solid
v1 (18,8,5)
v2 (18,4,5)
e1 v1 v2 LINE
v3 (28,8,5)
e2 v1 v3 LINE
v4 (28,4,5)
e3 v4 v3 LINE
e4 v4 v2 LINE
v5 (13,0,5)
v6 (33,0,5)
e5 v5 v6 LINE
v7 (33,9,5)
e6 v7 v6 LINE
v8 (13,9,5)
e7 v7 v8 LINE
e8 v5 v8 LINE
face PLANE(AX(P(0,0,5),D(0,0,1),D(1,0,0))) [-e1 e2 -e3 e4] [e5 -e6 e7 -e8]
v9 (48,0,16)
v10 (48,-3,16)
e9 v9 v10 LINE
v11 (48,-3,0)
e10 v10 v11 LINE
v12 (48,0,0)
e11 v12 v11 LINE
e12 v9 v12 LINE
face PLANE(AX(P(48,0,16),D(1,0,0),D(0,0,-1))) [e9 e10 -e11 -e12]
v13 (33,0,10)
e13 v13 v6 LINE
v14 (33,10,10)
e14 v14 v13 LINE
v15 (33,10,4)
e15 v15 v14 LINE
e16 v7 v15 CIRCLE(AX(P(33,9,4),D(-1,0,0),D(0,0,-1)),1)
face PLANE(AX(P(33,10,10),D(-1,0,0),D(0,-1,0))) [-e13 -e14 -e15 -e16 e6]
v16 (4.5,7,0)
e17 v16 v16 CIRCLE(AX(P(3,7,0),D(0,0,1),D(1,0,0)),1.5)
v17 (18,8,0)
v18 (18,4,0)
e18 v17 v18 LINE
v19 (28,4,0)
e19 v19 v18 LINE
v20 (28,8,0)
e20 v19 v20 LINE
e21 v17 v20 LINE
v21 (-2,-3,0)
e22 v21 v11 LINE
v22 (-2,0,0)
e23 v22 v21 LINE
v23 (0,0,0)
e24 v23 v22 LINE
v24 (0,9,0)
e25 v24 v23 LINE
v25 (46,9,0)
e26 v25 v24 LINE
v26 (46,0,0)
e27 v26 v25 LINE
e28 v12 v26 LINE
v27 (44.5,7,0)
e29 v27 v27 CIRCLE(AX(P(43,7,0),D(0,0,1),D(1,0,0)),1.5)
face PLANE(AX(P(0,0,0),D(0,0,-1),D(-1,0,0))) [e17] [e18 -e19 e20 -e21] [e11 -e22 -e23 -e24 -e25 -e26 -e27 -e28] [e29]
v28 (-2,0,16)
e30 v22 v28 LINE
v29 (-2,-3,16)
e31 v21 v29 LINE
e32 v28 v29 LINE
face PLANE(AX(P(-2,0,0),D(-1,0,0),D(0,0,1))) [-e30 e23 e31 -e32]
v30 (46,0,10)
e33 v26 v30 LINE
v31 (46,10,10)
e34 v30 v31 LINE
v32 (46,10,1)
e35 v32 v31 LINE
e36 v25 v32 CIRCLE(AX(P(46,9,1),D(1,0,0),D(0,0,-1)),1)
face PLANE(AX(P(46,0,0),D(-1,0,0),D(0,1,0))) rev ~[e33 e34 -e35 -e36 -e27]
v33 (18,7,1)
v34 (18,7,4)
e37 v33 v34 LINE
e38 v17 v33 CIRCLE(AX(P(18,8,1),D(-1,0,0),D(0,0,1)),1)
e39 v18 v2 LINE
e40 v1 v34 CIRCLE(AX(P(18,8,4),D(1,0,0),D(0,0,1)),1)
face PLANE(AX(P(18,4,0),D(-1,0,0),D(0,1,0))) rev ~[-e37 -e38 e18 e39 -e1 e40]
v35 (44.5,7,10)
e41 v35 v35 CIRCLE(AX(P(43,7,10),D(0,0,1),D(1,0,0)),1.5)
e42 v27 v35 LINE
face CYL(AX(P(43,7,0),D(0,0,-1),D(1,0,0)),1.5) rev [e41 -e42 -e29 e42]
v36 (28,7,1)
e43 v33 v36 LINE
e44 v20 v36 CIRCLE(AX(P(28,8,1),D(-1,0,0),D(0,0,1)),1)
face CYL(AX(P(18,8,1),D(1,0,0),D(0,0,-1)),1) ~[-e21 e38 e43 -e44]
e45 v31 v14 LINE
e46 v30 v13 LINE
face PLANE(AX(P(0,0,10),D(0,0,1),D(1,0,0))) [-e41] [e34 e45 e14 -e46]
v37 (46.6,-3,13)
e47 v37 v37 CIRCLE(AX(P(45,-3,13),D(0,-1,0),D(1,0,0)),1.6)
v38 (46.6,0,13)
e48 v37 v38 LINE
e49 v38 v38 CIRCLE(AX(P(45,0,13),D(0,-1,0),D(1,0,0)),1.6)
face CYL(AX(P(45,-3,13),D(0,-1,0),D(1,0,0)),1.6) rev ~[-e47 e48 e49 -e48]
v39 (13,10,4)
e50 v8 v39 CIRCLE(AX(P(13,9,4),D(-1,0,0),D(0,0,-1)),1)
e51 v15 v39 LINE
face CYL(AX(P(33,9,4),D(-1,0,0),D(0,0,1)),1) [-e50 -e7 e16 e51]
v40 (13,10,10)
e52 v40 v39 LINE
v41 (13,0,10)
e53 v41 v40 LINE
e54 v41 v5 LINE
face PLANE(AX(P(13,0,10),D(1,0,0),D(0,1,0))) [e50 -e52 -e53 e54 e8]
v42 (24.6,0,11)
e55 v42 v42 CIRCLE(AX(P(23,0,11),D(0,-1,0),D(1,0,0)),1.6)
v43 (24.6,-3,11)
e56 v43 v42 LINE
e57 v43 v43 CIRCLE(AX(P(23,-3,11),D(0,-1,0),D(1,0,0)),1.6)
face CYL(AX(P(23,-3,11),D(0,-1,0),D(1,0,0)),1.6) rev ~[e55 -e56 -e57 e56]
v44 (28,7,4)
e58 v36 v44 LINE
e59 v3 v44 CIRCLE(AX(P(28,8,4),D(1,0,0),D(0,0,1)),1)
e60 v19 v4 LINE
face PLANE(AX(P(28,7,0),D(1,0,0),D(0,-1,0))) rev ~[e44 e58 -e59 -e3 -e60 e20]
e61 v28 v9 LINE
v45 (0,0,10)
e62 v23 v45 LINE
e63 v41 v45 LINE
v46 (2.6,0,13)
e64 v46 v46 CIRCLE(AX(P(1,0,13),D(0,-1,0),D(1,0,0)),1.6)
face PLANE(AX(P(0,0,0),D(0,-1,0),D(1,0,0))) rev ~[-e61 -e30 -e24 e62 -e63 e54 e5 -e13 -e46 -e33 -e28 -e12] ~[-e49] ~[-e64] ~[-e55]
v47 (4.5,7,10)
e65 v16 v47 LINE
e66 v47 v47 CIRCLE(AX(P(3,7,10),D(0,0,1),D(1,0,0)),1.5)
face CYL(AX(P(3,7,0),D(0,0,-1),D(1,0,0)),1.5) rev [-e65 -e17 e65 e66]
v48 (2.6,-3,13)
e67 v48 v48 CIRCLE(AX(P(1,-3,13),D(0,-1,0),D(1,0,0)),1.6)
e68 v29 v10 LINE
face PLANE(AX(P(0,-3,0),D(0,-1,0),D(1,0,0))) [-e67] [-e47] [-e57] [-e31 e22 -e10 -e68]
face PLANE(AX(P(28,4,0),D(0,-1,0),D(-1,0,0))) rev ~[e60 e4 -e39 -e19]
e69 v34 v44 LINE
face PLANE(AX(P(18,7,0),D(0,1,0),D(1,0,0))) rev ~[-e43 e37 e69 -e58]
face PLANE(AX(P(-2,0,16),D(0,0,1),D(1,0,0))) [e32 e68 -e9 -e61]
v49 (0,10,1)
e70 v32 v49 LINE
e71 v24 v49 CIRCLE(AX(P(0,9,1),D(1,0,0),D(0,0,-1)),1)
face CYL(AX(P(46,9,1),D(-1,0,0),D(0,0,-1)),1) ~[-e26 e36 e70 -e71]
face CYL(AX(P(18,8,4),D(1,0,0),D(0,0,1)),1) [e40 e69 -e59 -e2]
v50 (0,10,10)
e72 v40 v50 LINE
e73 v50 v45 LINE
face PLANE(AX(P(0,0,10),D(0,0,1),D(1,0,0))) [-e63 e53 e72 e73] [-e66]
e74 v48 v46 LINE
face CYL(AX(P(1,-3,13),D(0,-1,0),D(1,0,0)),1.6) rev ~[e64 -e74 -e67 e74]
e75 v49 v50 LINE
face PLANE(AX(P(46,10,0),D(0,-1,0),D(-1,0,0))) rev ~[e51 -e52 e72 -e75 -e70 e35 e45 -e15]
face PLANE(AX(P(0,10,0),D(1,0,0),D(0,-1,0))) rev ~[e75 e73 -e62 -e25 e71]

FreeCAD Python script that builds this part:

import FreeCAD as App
import Part
import Sketcher
from FreeCAD import Vector
Q = App.Units.Quantity


def edges_at(feature, points):
    """Names of the edges that pass closest to the given points."""
    edges = feature.Shape.Edges
    near = lambda p: min(range(len(edges)), key=lambda i: edges[i].distToShape(Part.Vertex(*p))[0])
    return sorted({f"Edge{near(p) + 1}" for p in points})

doc = App.newDocument("Part")
body = doc.addObject("PartDesign::Body", "Body")

sketch1 = body.newObject("Sketcher::SketchObject", "Sketch")
sketch1.AttachmentSupport = (doc.getObject("XY_Plane"), [""])
sketch1.MapMode = "FlatFace"
sketch1.addGeometry([
    Part.LineSegment(Vector(0, 10, 0), Vector(0, 0, 0)),
    Part.LineSegment(Vector(0, 0, 0), Vector(46, 0, 0)),
    Part.LineSegment(Vector(46, 0, 0), Vector(46, 10, 0)),
    Part.LineSegment(Vector(46, 10, 0), Vector(0, 10, 0)),
    Part.LineSegment(Vector(18, 7, 0), Vector(28, 7, 0)),
    Part.LineSegment(Vector(28, 7, 0), Vector(28, 4, 0)),
    Part.LineSegment(Vector(28, 4, 0), Vector(18, 4, 0)),
    Part.LineSegment(Vector(18, 4, 0), Vector(18, 7, 0)),
    Part.Circle(Vector(43, 7, 0), Vector(0, 0, 1), 1.5),
    Part.Circle(Vector(3, 7, 0), Vector(0, 0, 1), 1.5),
], False)
sketch1.addConstraint([
    Sketcher.Constraint("Coincident", 0, 2, 1, 1),
    Sketcher.Constraint("Coincident", 1, 2, 2, 1),
    Sketcher.Constraint("Coincident", 2, 2, 3, 1),
    Sketcher.Constraint("Coincident", 3, 2, 0, 1),
    Sketcher.Constraint("Coincident", 4, 2, 5, 1),
    Sketcher.Constraint("Coincident", 5, 2, 6, 1),
    Sketcher.Constraint("Coincident", 6, 2, 7, 1),
    Sketcher.Constraint("Coincident", 7, 2, 4, 1),
    Sketcher.Constraint("Vertical", 0),
    Sketcher.Constraint("Horizontal", 1),
    Sketcher.Constraint("Vertical", 2),
    Sketcher.Constraint("Horizontal", 3),
    Sketcher.Constraint("Horizontal", 4),
    Sketcher.Constraint("Vertical", 5),
    Sketcher.Constraint("Horizontal", 6),
    Sketcher.Constraint("Vertical", 7),
    Sketcher.Constraint("Coincident", 0, 2, -1, 1),
    Sketcher.Constraint("Equal", 8, 9),
    Sketcher.Constraint("Horizontal", 8, 3, 9, 3),
    Sketcher.Constraint("Horizontal", 9, 3, 4, 2),
    Sketcher.Constraint("Equal", 6, 0),
    Sketcher.Constraint("Diameter", 8, Q("3 mm")),
    Sketcher.Constraint("DistanceX", 4, 1, 4, 2, Q("10 mm")),
    Sketcher.Constraint("DistanceY", 5, 2, 5, 1, Q("3 mm")),
    Sketcher.Constraint("DistanceY", -1, 1, 8, 3, Q("7 mm")),
    Sketcher.Constraint("DistanceX", -1, 1, 9, 3, Q("3 mm")),
    Sketcher.Constraint("DistanceX", 9, 3, 8, 3, Q("40 mm")),
    Sketcher.Constraint("DistanceX", 8, 3, 1, 2, Q("3 mm")),
    Sketcher.Constraint("DistanceX", -1, 1, 4, 2, Q("28 mm")),
])
pad1 = body.newObject("PartDesign::Pad", "Pad")
pad1.Profile = sketch1
pad1.Length = 10

sketch2 = body.newObject("Sketcher::SketchObject", "Sketch001")
sketch2.AttachmentSupport = (doc.getObject("XY_Plane"), [""])
sketch2.MapMode = "FlatFace"
sketch2.AttachmentOffset = App.Placement(Vector(0, 0, 10), App.Rotation())
sketch2.addGeometry([
    Part.LineSegment(Vector(33, 0, 0), Vector(33, 10, 0)),
    Part.LineSegment(Vector(33, 10, 0), Vector(13, 10, 0)),
    Part.LineSegment(Vector(13, 10, 0), Vector(13, 0, 0)),
    Part.LineSegment(Vector(13, 0, 0), Vector(33, 0, 0)),
], False)
sketch2.addConstraint([
    Sketcher.Constraint("Coincident", 0, 2, 1, 1),
    Sketcher.Constraint("Coincident", 1, 2, 2, 1),
    Sketcher.Constraint("Coincident", 2, 2, 3, 1),
    Sketcher.Constraint("Coincident", 3, 2, 0, 1),
    Sketcher.Constraint("Vertical", 0),
    Sketcher.Constraint("Horizontal", 1),
    Sketcher.Constraint("Vertical", 2),
    Sketcher.Constraint("Horizontal", 3),
    Sketcher.Constraint("PointOnObject", 2, 2, -1),
    Sketcher.Constraint("DistanceX", 1, 2, 1, 1, Q("20 mm")),
    Sketcher.Constraint("DistanceY", 0, 1, 0, 2, Q("10 mm")),
    Sketcher.Constraint("DistanceX", -1, 1, 0, 2, Q("33 mm")),
])
pocket1 = body.newObject("PartDesign::Pocket", "Pocket")
pocket1.Profile = sketch2
pocket1.Length = 5

sketch3 = body.newObject("Sketcher::SketchObject", "Sketch002")
sketch3.AttachmentSupport = (doc.getObject("XZ_Plane"), [""])
sketch3.MapMode = "FlatFace"
sketch3.addGeometry([
    Part.LineSegment(Vector(48, 16, 0), Vector(-2, 16, 0)),
    Part.LineSegment(Vector(-2, 16, 0), Vector(-2, 0, 0)),
    Part.LineSegment(Vector(-2, 0, 0), Vector(48, 0, 0)),
    Part.LineSegment(Vector(48, 0, 0), Vector(48, 16, 0)),
], False)
sketch3.addConstraint([
    Sketcher.Constraint("Coincident", 0, 2, 1, 1),
    Sketcher.Constraint("Coincident", 1, 2, 2, 1),
    Sketcher.Constraint("Coincident", 2, 2, 3, 1),
    Sketcher.Constraint("Coincident", 3, 2, 0, 1),
    Sketcher.Constraint("Horizontal", 0),
    Sketcher.Constraint("Vertical", 1),
    Sketcher.Constraint("Horizontal", 2),
    Sketcher.Constraint("Vertical", 3),
    Sketcher.Constraint("PointOnObject", 1, 2, -1),
    Sketcher.Constraint("DistanceX", 0, 2, 0, 1, Q("50 mm")),
    Sketcher.Constraint("DistanceY", 1, 2, 1, 1, Q("16 mm")),
    Sketcher.Constraint("DistanceX", 0, 2, -1, 1, Q("2 mm")),
])
pad2 = body.newObject("PartDesign::Pad", "Pad001")
pad2.Profile = sketch3
pad2.Length = 3
doc.recompute()

fillet = body.newObject("PartDesign::Fillet", "Fillet")
fillet.Base = (pad2, edges_at(pad2, [
    (23, 10, 5),
    (23, 10, 0),
    (23, 7, 0),
    (23, 7, 5),
]))
fillet.Radius = 1

sketch4 = body.newObject("Sketcher::SketchObject", "Sketch003")
sketch4.AttachmentSupport = (doc.getObject("XZ_Plane"), [""])
sketch4.MapMode = "FlatFace"
sketch4.AttachmentOffset = App.Placement(Vector(0, 0, 3), App.Rotation())
sketch4.addGeometry([
    Part.Circle(Vector(1, 13, 0), Vector(0, 0, 1), 1.6),
    Part.Circle(Vector(45, 13, 0), Vector(0, 0, 1), 1.6),
    Part.Circle(Vector(23, 11, 0), Vector(0, 0, 1), 1.6),
], False)
sketch4.addConstraint([
    Sketcher.Constraint("Equal", 0, 1),
    Sketcher.Constraint("Equal", 1, 2),
    Sketcher.Constraint("Horizontal", 0, 3, 1, 3),
    Sketcher.Constraint("Diameter", 0, Q("3.2 mm")),
    Sketcher.Constraint("DistanceX", -1, 1, 0, 3, Q("1 mm")),
    Sketcher.Constraint("DistanceY", -1, 1, 0, 3, Q("13 mm")),
    Sketcher.Constraint("DistanceX", -1, 1, 1, 3, Q("45 mm")),
    Sketcher.Constraint("DistanceX", -1, 1, 2, 3, Q("23 mm")),
    Sketcher.Constraint("DistanceY", -1, 1, 2, 3, Q("11 mm")),
])
pocket2 = body.newObject("PartDesign::Pocket", "Pocket001")
pocket2.Profile = sketch4
pocket2.Length = 10

doc.recompute()
